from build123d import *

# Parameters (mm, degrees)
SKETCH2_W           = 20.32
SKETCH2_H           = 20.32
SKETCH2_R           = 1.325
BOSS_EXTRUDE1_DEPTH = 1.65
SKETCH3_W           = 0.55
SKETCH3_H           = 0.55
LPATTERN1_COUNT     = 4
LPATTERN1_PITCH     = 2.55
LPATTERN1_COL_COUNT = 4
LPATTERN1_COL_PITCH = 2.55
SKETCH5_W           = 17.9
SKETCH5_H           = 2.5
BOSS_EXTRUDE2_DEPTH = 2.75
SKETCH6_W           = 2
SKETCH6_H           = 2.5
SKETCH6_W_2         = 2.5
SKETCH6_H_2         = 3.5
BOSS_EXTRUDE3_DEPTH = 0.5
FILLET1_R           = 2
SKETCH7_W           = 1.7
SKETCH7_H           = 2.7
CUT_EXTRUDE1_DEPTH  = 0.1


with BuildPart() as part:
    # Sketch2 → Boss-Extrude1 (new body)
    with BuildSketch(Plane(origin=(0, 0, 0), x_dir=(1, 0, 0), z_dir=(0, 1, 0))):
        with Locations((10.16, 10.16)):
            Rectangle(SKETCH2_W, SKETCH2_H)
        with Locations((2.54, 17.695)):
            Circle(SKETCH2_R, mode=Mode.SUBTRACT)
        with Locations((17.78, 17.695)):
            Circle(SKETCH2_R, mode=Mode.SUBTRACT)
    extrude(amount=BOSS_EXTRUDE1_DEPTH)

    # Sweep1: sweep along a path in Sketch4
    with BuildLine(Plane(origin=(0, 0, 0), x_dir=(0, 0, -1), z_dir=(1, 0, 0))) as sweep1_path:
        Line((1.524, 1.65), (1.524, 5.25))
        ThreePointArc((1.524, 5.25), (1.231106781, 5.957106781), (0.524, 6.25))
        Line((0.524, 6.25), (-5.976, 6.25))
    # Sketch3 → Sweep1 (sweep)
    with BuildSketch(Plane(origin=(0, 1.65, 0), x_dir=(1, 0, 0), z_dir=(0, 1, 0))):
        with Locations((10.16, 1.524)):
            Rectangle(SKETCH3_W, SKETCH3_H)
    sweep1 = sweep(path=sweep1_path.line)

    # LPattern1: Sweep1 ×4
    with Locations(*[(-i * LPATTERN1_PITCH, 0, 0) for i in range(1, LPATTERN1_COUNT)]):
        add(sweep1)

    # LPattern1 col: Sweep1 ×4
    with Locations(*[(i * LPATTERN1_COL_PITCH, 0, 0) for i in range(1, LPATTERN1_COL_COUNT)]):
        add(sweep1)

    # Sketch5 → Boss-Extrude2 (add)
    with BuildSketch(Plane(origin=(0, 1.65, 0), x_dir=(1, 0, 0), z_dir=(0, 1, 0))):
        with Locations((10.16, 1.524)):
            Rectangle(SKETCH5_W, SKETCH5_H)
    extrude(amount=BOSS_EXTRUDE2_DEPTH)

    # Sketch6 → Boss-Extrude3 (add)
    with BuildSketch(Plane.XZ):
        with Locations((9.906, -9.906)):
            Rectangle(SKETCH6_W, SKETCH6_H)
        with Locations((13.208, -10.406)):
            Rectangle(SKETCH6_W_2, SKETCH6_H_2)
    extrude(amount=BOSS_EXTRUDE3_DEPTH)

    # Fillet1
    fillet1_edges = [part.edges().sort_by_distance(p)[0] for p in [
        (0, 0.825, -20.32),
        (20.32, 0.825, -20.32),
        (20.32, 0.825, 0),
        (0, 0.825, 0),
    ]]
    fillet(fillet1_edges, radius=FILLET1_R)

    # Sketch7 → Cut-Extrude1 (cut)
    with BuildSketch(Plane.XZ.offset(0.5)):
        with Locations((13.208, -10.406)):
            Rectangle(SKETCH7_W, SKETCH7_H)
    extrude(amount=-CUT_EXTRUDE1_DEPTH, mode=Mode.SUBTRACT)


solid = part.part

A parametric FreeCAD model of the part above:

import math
import FreeCAD as App
import Part
import Sketcher
from FreeCAD import Vector


def edges_at(feature, points):
    """Names of the edges that pass closest to the given points."""
    edges = feature.Shape.Edges
    near = lambda p: min(range(len(edges)), key=lambda i: edges[i].distToShape(Part.Vertex(*p))[0])
    return sorted({f"Edge{near(p) + 1}" for p in points})


def add_polygon(sketch, points):
    """Adds a closed chain of lines whose ends are joined by coincident constraints."""
    first, n = sketch.GeometryCount, len(points)
    for a, b in zip(points, points[1:] + points[:1]):
        sketch.addGeometry(Part.LineSegment(App.Vector(*a, 0), App.Vector(*b, 0)), False)
    for i in range(n):
        sketch.addConstraint(Sketcher.Constraint("Coincident", first + i, 2, first + (i + 1) % n, 1))

doc = App.newDocument("Part")
body = doc.addObject("PartDesign::Body", "Body")

sketch1 = doc.addObject("Sketcher::SketchObject", "Sketch")
body.addObject(sketch1)
sketch1.AttachmentSupport = (doc.XZ_Plane, [""])
sketch1.MapMode = "FlatFace"
add_polygon(sketch1, [(0, -20.3), (0, 0), (20.3, 0), (20.3, -20.3)])
sketch1.addGeometry(Part.Circle(Vector(2.5, -17.7, 0), Vector(0, 0, 1), 1.3), False)
sketch1.addGeometry(Part.Circle(Vector(17.8, -17.7, 0), Vector(0, 0, 1), 1.3), False)
sketch1.addConstraint(Sketcher.Constraint("Vertical", 0))
sketch1.addConstraint(Sketcher.Constraint("Horizontal", 1))
sketch1.addConstraint(Sketcher.Constraint("Vertical", 2))
sketch1.addConstraint(Sketcher.Constraint("Horizontal", 3))
sketch1.addConstraint(Sketcher.Constraint("Coincident", 0, 2, -1, 1))
sketch1.addConstraint(Sketcher.Constraint("Equal", 4, 5))
sketch1.addConstraint(Sketcher.Constraint("Horizontal", 4, 3, 5, 3))
sketch1.addConstraint(Sketcher.Constraint("Equal", 3, 0))
sketch1.addConstraint(Sketcher.Constraint("Diameter", 4, 2.65))
sketch1.addConstraint(Sketcher.Constraint("DistanceX", 1, 1, 1, 2, 20.32))
sketch1.addConstraint(Sketcher.Constraint("DistanceX", -1, 1, 4, 3, 2.54))
sketch1.addConstraint(Sketcher.Constraint("DistanceX", -1, 1, 5, 3, 17.78))
sketch1.addConstraint(Sketcher.Constraint("DistanceY", 4, 3, -1, 1, 17.695))
pad1 = doc.addObject("PartDesign::Pad", "Pad")
body.addObject(pad1)
pad1.Profile = sketch1
pad1.Length = 1.65
pad1.Reversed = True

sketch2 = doc.addObject("Sketcher::SketchObject", "Sketch001")
body.addObject(sketch2)
sketch2.AttachmentSupport = (doc.XZ_Plane, [""])
sketch2.MapMode = "FlatFace"
sketch2.AttachmentOffset = App.Placement(Vector(0, 0, -1.65), App.Rotation())
add_polygon(sketch2, [(9.9, -1.8), (9.9, -1.2), (10.4, -1.2), (10.4, -1.8)])
sketch2.addConstraint(Sketcher.Constraint("Vertical", 0))
sketch2.addConstraint(Sketcher.Constraint("Horizontal", 1))
sketch2.addConstraint(Sketcher.Constraint("Vertical", 2))
sketch2.addConstraint(Sketcher.Constraint("Horizontal", 3))
sketch2.addConstraint(Sketcher.Constraint("Equal", 3, 0))
sketch2.addConstraint(Sketcher.Constraint("DistanceX", 1, 1, 1, 2, 0.55))
sketch2.addConstraint(Sketcher.Constraint("DistanceX", -1, 1, 0, 2, 9.885))
sketch2.addConstraint(Sketcher.Constraint("DistanceY", 0, 2, -1, 1, 1.249))

sketch3 = doc.addObject("Sketcher::SketchObject", "Sketch002")
body.addObject(sketch3)
sketch3.AttachmentSupport = (doc.YZ_Plane, [""])
sketch3.MapMode = "FlatFace"
sketch3.addGeometry(Part.LineSegment(Vector(1.6, -1.5, 0), Vector(5.2, -1.5, 0)), False)
sketch3.addGeometry(Part.ArcOfCircle(Part.Circle(Vector(5.2, -0.5, 0), Vector(0, 0, 1), 1), math.radians(-90), math.radians(0)), False)
sketch3.addGeometry(Part.LineSegment(Vector(6.2, -0.5, 0), Vector(6.2, 6, 0)), False)
sketch3.addConstraint(Sketcher.Constraint("Tangent", 0, 2, 1, 1))
sketch3.addConstraint(Sketcher.Constraint("Tangent", 1, 2, 2, 1))
sketch3.addConstraint(Sketcher.Constraint("Horizontal", 0))
sketch3.addConstraint(Sketcher.Constraint("Vertical", 2))
sketch3.addConstraint(Sketcher.Constraint("Radius", 1, 1.0))
sketch3.addConstraint(Sketcher.Constraint("DistanceX", 0, 1, 0, 2, 3.6))
sketch3.addConstraint(Sketcher.Constraint("DistanceY", 2, 1, 2, 2, 6.5))
sketch3.addConstraint(Sketcher.Constraint("DistanceX", -1, 1, 1, 3, 5.25))
sketch3.addConstraint(Sketcher.Constraint("DistanceY", 1, 3, -1, 1, 0.524))
doc.recompute()

additivepipe = doc.addObject("PartDesign::AdditivePipe", "AdditivePipe")
body.addObject(additivepipe)
additivepipe.Profile = sketch2
additivepipe.Spine = (sketch3, ["Edge1", "Edge2", "Edge3"])
doc.recompute()

linearpattern = doc.addObject("PartDesign::LinearPattern", "LinearPattern")
body.addObject(linearpattern)
linearpattern.Originals = [additivepipe]
linearpattern.Direction = (doc.X_Axis, [""])
linearpattern.Mode = "offset"
linearpattern.Offset = 2.55
linearpattern.Occurrences = 4
linearpattern.Reversed = True
body.Tip = linearpattern
doc.recompute()

linearpattern2 = doc.addObject("PartDesign::LinearPattern", "LinearPattern001")
body.addObject(linearpattern2)
linearpattern2.Originals = [additivepipe]
linearpattern2.Direction = (doc.X_Axis, [""])
linearpattern2.Mode = "offset"
linearpattern2.Offset = 2.55
linearpattern2.Occurrences = 4
body.Tip = linearpattern2

sketch4 = doc.addObject("Sketcher::SketchObject", "Sketch003")
body.addObject(sketch4)
sketch4.AttachmentSupport = (doc.XZ_Plane, [""])
sketch4.MapMode = "FlatFace"
sketch4.AttachmentOffset = App.Placement(Vector(0, 0, -1.65), App.Rotation())
add_polygon(sketch4, [(1.2, -2.8), (1.2, -0.3), (19.1, -0.3), (19.1, -2.8)])
sketch4.addConstraint(Sketcher.Constraint("Vertical", 0))
sketch4.addConstraint(Sketcher.Constraint("Horizontal", 1))
sketch4.addConstraint(Sketcher.Constraint("Vertical", 2))
sketch4.addConstraint(Sketcher.Constraint("Horizontal", 3))
sketch4.addConstraint(Sketcher.Constraint("DistanceX", 1, 1, 1, 2, 17.9))
sketch4.addConstraint(Sketcher.Constraint("DistanceY", 0, 1, 0, 2, 2.5))
sketch4.addConstraint(Sketcher.Constraint("DistanceX", -1, 1, 0, 2, 1.21))
sketch4.addConstraint(Sketcher.Constraint("DistanceY", 0, 2, -1, 1, 0.274))
pad2 = doc.addObject("PartDesign::Pad", "Pad001")
body.addObject(pad2)
pad2.Profile = sketch4
pad2.Length = 2.75
pad2.Reversed = True

sketch5 = doc.addObject("Sketcher::SketchObject", "Sketch004")
body.addObject(sketch5)
sketch5.AttachmentSupport = (doc.XZ_Plane, [""])
sketch5.MapMode = "FlatFace"
add_polygon(sketch5, [(8.9, -8.7), (8.9, -11.2), (10.9, -11.2), (10.9, -8.7)])
add_polygon(sketch5, [(12, -8.7), (12, -12.2), (14.5, -12.2), (14.5, -8.7)])
sketch5.addConstraint(Sketcher.Constraint("Vertical", 0))
sketch5.addConstraint(Sketcher.Constraint("Horizontal", 1))
sketch5.addConstraint(Sketcher.Constraint("Vertical", 2))
sketch5.addConstraint(Sketcher.Constraint("Horizontal", 3))
sketch5.addConstraint(Sketcher.Constraint("Vertical", 4))
sketch5.addConstraint(Sketcher.Constraint("Horizontal", 5))
sketch5.addConstraint(Sketcher.Constraint("Vertical", 6))
sketch5.addConstraint(Sketcher.Constraint("Horizontal", 7))
sketch5.addConstraint(Sketcher.Constraint("Horizontal", 3, 2, 6, 2))
sketch5.addConstraint(Sketcher.Constraint("Equal", 7, 0))
sketch5.addConstraint(Sketcher.Constraint("DistanceX", 1, 1, 1, 2, 2.0))
sketch5.addConstraint(Sketcher.Constraint("DistanceX", 5, 1, 5, 2, 2.5))
sketch5.addConstraint(Sketcher.Constraint("DistanceY", 4, 2, 4, 1, 3.5))
sketch5.addConstraint(Sketcher.Constraint("DistanceX", -1, 1, 0, 2, 8.906))
sketch5.addConstraint(Sketcher.Constraint("DistanceY", 0, 2, -1, 1, 11.156))
sketch5.addConstraint(Sketcher.Constraint("DistanceX", -1, 1, 4, 2, 11.958))
pad3 = doc.addObject("PartDesign::Pad", "Pad002")
body.addObject(pad3)
pad3.Profile = sketch5
pad3.Length = 0.5
doc.recompute()

fillet = doc.addObject("PartDesign::Fillet", "Fillet")
body.addObject(fillet)
fillet.Base = (pad3, edges_at(pad3, [
    (0, 0.825, -20.32),
    (20.32, 0.825, -20.32),
    (20.32, 0.825, 0),
    (0, 0.825, 0),
]))
fillet.Radius = 2

sketch6 = doc.addObject("Sketcher::SketchObject", "Sketch005")
body.addObject(sketch6)
sketch6.AttachmentSupport = (doc.XZ_Plane, [""])
sketch6.MapMode = "FlatFace"
sketch6.AttachmentOffset = App.Placement(Vector(0, 0, 0.5), App.Rotation())
add_polygon(sketch6, [(12.4, -9.1), (12.4, -11.8), (14.1, -11.8), (14.1, -9.1)])
sketch6.addConstraint(Sketcher.Constraint("Vertical", 0))
sketch6.addConstraint(Sketcher.Constraint("Horizontal", 1))
sketch6.addConstraint(Sketcher.Constraint("Vertical", 2))
sketch6.addConstraint(Sketcher.Constraint("Horizontal", 3))
sketch6.addConstraint(Sketcher.Constraint("DistanceX", 1, 1, 1, 2, 1.7))
sketch6.addConstraint(Sketcher.Constraint("DistanceY", 0, 2, 0, 1, 2.7))
sketch6.addConstraint(Sketcher.Constraint("DistanceX", -1, 1, 0, 2, 12.358))
sketch6.addConstraint(Sketcher.Constraint("DistanceY", 0, 2, -1, 1, 11.756))
pocket1 = doc.addObject("PartDesign::Pocket", "Pocket")
body.addObject(pocket1)
pocket1.Profile = sketch6
pocket1.Length = 0.1

doc.recompute()
